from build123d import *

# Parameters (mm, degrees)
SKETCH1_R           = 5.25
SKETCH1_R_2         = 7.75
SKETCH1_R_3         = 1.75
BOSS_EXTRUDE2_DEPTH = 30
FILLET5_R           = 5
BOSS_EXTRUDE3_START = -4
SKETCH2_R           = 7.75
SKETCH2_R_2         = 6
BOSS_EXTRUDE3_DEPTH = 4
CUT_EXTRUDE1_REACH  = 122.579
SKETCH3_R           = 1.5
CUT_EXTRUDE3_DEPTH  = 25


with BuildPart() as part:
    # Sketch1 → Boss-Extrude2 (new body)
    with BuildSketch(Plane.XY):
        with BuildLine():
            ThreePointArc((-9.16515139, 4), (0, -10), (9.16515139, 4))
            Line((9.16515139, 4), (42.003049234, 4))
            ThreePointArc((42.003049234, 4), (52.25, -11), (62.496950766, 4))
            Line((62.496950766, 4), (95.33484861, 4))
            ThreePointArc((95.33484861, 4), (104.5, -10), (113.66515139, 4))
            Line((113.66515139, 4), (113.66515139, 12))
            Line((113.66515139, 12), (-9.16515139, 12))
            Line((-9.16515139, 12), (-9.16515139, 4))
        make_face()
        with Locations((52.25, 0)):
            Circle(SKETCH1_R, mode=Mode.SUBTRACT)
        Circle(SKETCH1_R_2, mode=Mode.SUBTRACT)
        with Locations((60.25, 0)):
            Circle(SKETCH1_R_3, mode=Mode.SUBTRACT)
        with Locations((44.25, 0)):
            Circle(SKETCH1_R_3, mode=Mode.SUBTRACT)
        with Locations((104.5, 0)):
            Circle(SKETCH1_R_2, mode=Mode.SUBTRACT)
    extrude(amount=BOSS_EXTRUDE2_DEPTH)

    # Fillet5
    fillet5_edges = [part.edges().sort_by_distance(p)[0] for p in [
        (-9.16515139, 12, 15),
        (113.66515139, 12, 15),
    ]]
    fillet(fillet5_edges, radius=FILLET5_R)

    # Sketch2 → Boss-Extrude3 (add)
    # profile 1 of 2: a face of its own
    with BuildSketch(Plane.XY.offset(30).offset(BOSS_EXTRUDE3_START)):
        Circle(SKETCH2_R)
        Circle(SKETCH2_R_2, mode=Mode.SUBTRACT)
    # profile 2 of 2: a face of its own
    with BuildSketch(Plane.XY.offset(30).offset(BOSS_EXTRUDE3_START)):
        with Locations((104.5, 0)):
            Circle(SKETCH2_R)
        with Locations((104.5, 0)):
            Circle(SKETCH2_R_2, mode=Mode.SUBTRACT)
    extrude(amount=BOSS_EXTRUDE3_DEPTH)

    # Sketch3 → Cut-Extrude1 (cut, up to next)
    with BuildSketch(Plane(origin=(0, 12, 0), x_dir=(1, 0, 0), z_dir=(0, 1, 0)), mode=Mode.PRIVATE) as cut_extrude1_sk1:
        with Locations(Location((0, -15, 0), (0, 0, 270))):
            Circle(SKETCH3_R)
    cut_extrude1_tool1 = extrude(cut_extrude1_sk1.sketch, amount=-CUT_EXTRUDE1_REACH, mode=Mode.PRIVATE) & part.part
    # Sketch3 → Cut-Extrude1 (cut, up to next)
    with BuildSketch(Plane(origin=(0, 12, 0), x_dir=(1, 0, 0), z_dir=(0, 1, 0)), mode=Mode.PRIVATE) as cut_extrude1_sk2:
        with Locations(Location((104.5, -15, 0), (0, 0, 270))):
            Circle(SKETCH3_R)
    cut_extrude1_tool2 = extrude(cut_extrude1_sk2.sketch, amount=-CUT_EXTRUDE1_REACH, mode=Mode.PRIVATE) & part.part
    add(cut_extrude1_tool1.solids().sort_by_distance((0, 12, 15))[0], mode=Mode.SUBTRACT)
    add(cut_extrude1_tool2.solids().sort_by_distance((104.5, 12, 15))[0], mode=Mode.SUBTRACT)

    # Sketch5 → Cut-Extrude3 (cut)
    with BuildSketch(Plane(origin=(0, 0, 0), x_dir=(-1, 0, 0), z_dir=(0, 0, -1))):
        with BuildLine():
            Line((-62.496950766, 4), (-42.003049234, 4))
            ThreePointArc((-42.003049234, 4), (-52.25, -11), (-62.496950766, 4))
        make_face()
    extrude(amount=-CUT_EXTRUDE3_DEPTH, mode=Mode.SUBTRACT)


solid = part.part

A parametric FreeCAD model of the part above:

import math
import FreeCAD as App
import Part
import Sketcher

V = App.Vector
Q = App.Units.Quantity


def edges_at(feature, points):
    """Names of the edges that pass closest to the given points."""
    edges = feature.Shape.Edges
    near = lambda p: min(range(len(edges)), key=lambda i: edges[i].distToShape(Part.Vertex(*p))[0])
    return sorted({f"Edge{near(p) + 1}" for p in points})

doc = App.newDocument("Part")
body = doc.addObject("PartDesign::Body", "Body")

# Sketch on XY plane
sketch1 = doc.addObject("Sketcher::SketchObject", "Sketch")
body.addObject(sketch1)
sketch1.AttachmentSupport = (doc.XY_Plane, [""])
sketch1.MapMode = "FlatFace"
sketch1.addGeometry(Part.ArcOfCircle(Part.Circle(V(0, 0, 0), V(0, 0, 1), 10), math.radians(156), math.radians(384)), False)
sketch1.addGeometry(Part.LineSegment(V(9.2, 4, 0), V(42, 4, 0)), False)
sketch1.addGeometry(Part.ArcOfCircle(Part.Circle(V(52.2, 0, 0), V(0, 0, 1), 11), math.radians(159), math.radians(381)), False)
sketch1.addGeometry(Part.LineSegment(V(62.5, 4, 0), V(95.3, 4, 0)), False)
sketch1.addGeometry(Part.ArcOfCircle(Part.Circle(V(104.5, 0, 0), V(0, 0, 1), 10), math.radians(156), math.radians(384)), False)
sketch1.addGeometry(Part.LineSegment(V(113.7, 4, 0), V(113.7, 12, 0)), False)
sketch1.addGeometry(Part.LineSegment(V(113.7, 12, 0), V(-9.2, 12, 0)), False)
sketch1.addGeometry(Part.LineSegment(V(-9.2, 12, 0), V(-9.2, 4, 0)), False)
sketch1.addGeometry(Part.Circle(V(0, 0, 0), V(0, 0, 1), 7.8), False)
sketch1.addGeometry(Part.Circle(V(44.2, 0, 0), V(0, 0, 1), 1.8), False)
sketch1.addGeometry(Part.Circle(V(52.2, 0, 0), V(0, 0, 1), 5.2), False)
sketch1.addGeometry(Part.Circle(V(60.2, 0, 0), V(0, 0, 1), 1.8), False)
sketch1.addGeometry(Part.Circle(V(104.5, 0, 0), V(0, 0, 1), 7.8), False)
sketch1.addConstraint(Sketcher.Constraint("Coincident", 0, 2, 1, 1))
sketch1.addConstraint(Sketcher.Constraint("Coincident", 1, 2, 2, 1))
sketch1.addConstraint(Sketcher.Constraint("Coincident", 2, 2, 3, 1))
sketch1.addConstraint(Sketcher.Constraint("Coincident", 3, 2, 4, 1))
sketch1.addConstraint(Sketcher.Constraint("Coincident", 4, 2, 5, 1))
sketch1.addConstraint(Sketcher.Constraint("Coincident", 5, 2, 6, 1))
sketch1.addConstraint(Sketcher.Constraint("Coincident", 6, 2, 7, 1))
sketch1.addConstraint(Sketcher.Constraint("Coincident", 7, 2, 0, 1))
sketch1.addConstraint(Sketcher.Constraint("Horizontal", 1))
sketch1.addConstraint(Sketcher.Constraint("Horizontal", 3))
sketch1.addConstraint(Sketcher.Constraint("Vertical", 5))
sketch1.addConstraint(Sketcher.Constraint("Horizontal", 6))
sketch1.addConstraint(Sketcher.Constraint("Vertical", 7))
sketch1.addConstraint(Sketcher.Constraint("Coincident", 0, 3, -1, 1))
sketch1.addConstraint(Sketcher.Constraint("Coincident", 8, 3, -1, 1))
sketch1.addConstraint(Sketcher.Constraint("Coincident", 10, 3, 2, 3))
sketch1.addConstraint(Sketcher.Constraint("Coincident", 12, 3, 4, 3))
sketch1.addConstraint(Sketcher.Constraint("Equal", 0, 4))
sketch1.addConstraint(Sketcher.Constraint("Equal", 9, 11))
sketch1.addConstraint(Sketcher.Constraint("Equal", 8, 12))
sketch1.addConstraint(Sketcher.Constraint("PointOnObject", 2, 3, -1))
sketch1.addConstraint(Sketcher.Constraint("PointOnObject", 4, 3, -1))
sketch1.addConstraint(Sketcher.Constraint("PointOnObject", 9, 3, -1))
sketch1.addConstraint(Sketcher.Constraint("PointOnObject", 11, 3, -1))
sketch1.addConstraint(Sketcher.Constraint("Horizontal", 1, 2, 2, 2))
sketch1.addConstraint(Sketcher.Constraint("Horizontal", 3, 2, 4, 2))
sketch1.addConstraint(Sketcher.Constraint("Horizontal", 4, 2, 7, 2))
sketch1.addConstraint(Sketcher.Constraint("Equal", 1, 3))
sketch1.addConstraint(Sketcher.Constraint("Radius", 0, Q("10 mm")))
sketch1.addConstraint(Sketcher.Constraint("Radius", 2, Q("11 mm")))
sketch1.addConstraint(Sketcher.Constraint("Diameter", 8, Q("15.5 mm")))
sketch1.addConstraint(Sketcher.Constraint("Diameter", 9, Q("3.5 mm")))
sketch1.addConstraint(Sketcher.Constraint("Diameter", 10, Q("10.5 mm")))
sketch1.addConstraint(Sketcher.Constraint("DistanceY", 5, 1, 5, 2, Q("8 mm")))
sketch1.addConstraint(Sketcher.Constraint("DistanceY", -1, 1, 0, 2, Q("4 mm")))
sketch1.addConstraint(Sketcher.Constraint("DistanceX", 9, 3, 2, 3, Q("8 mm")))
sketch1.addConstraint(Sketcher.Constraint("DistanceX", 2, 3, 11, 3, Q("8 mm")))
sketch1.addConstraint(Sketcher.Constraint("DistanceX", -1, 1, 4, 3, Q("104.5 mm")))
pad1 = doc.addObject("PartDesign::Pad", "Pad")
body.addObject(pad1)
pad1.Profile = sketch1
pad1.Length = 30
doc.recompute()

fillet = doc.addObject("PartDesign::Fillet", "Fillet")
body.addObject(fillet)
fillet.Base = (pad1, edges_at(pad1, [(-9.165, 12, 15), (113.665, 12, 15)]))
fillet.Radius = 5

# Sketch on XY plane
sketch2 = doc.addObject("Sketcher::SketchObject", "Sketch001")
body.addObject(sketch2)
sketch2.AttachmentSupport = (doc.XY_Plane, [""])
sketch2.MapMode = "FlatFace"
sketch2.AttachmentOffset = App.Placement(V(0, 0, 26), App.Rotation())
sketch2.addGeometry(Part.Circle(V(0, 0, 0), V(0, 0, 1), 8), False)
sketch2.addGeometry(Part.Circle(V(0, 0, 0), V(0, 0, 1), 6), False)
sketch2.addGeometry(Part.Circle(V(104, 0, 0), V(0, 0, 1), 8), False)
sketch2.addGeometry(Part.Circle(V(104, 0, 0), V(0, 0, 1), 6), False)
sketch2.addConstraint(Sketcher.Constraint("Coincident", 0, 3, -1, 1))
sketch2.addConstraint(Sketcher.Constraint("Coincident", 1, 3, -1, 1))
sketch2.addConstraint(Sketcher.Constraint("Coincident", 3, 3, 2, 3))
sketch2.addConstraint(Sketcher.Constraint("Equal", 0, 2))
sketch2.addConstraint(Sketcher.Constraint("Equal", 1, 3))
sketch2.addConstraint(Sketcher.Constraint("PointOnObject", 2, 3, -1))
sketch2.addConstraint(Sketcher.Constraint("Diameter", 1, Q("12 mm")))
sketch2.addConstraint(Sketcher.Constraint("Diameter", 0, Q("15.5 mm")))
sketch2.addConstraint(Sketcher.Constraint("DistanceX", -1, 1, 2, 3, Q("104.5 mm")))
pad2 = doc.addObject("PartDesign::Pad", "Pad001")
body.addObject(pad2)
pad2.Profile = sketch2
pad2.Length = 4

# Sketch on XZ plane
sketch3 = doc.addObject("Sketcher::SketchObject", "Sketch002")
body.addObject(sketch3)
sketch3.AttachmentSupport = (doc.XZ_Plane, [""])
sketch3.MapMode = "FlatFace"
sketch3.AttachmentOffset = App.Placement(V(0, 0, -12), App.Rotation())
sketch3.addGeometry(Part.Circle(V(0, 15, 0), V(0, 0, 1), 1.5), False)
sketch3.addConstraint(Sketcher.Constraint("PointOnObject", 0, 3, -2))
sketch3.addConstraint(Sketcher.Constraint("Diameter", 0, Q("3 mm")))
sketch3.addConstraint(Sketcher.Constraint("DistanceY", -1, 1, 0, 3, Q("15 mm")))
pocket1 = doc.addObject("PartDesign::Pocket", "Pocket")
body.addObject(pocket1)
pocket1.Profile = sketch3
pocket1.Type = "UpToFirst"
pocket1.Reversed = True

# Sketch on XZ plane
sketch4 = doc.addObject("Sketcher::SketchObject", "Sketch003")
body.addObject(sketch4)
sketch4.AttachmentSupport = (doc.XZ_Plane, [""])
sketch4.MapMode = "FlatFace"
sketch4.AttachmentOffset = App.Placement(V(0, 0, -12), App.Rotation())
sketch4.addGeometry(Part.Circle(V(104.5, 15, 0), V(0, 0, 1), 1.5), False)
sketch4.addConstraint(Sketcher.Constraint("Diameter", 0, Q("3 mm")))
sketch4.addConstraint(Sketcher.Constraint("DistanceY", -1, 1, 0, 3, Q("15 mm")))
sketch4.addConstraint(Sketcher.Constraint("DistanceX", -1, 1, 0, 3, Q("104.5 mm")))
pocket2 = doc.addObject("PartDesign::Pocket", "Pocket001")
body.addObject(pocket2)
pocket2.Profile = sketch4
pocket2.Type = "UpToFirst"
pocket2.Reversed = True

# Sketch on XY plane
sketch5 = doc.addObject("Sketcher::SketchObject", "Sketch004")
body.addObject(sketch5)
sketch5.AttachmentSupport = (doc.XY_Plane, [""])
sketch5.MapMode = "FlatFace"
sketch5.addGeometry(Part.LineSegment(V(42, 4, 0), V(62, 4, 0)), False)
sketch5.addGeometry(Part.ArcOfCircle(Part.Circle(V(52, 0, 0), V(0, 0, 1), 11), math.radians(159), math.radians(381)), False)
sketch5.addConstraint(Sketcher.Constraint("Coincident", 0, 1, 1, 1))
sketch5.addConstraint(Sketcher.Constraint("Coincident", 1, 2, 0, 2))
sketch5.addConstraint(Sketcher.Constraint("Horizontal", 0))
sketch5.addConstraint(Sketcher.Constraint("PointOnObject", 1, 3, -1))
sketch5.addConstraint(Sketcher.Constraint("Radius", 1, Q("11 mm")))
sketch5.addConstraint(Sketcher.Constraint("DistanceY", -1, 1, 0, 1, Q("4 mm")))
sketch5.addConstraint(Sketcher.Constraint("DistanceX", -1, 1, 1, 3, Q("52.25 mm")))
pocket3 = doc.addObject("PartDesign::Pocket", "Pocket002")
body.addObject(pocket3)
pocket3.Profile = sketch5
pocket3.Length = 25
pocket3.Reversed = True

doc.recompute()
